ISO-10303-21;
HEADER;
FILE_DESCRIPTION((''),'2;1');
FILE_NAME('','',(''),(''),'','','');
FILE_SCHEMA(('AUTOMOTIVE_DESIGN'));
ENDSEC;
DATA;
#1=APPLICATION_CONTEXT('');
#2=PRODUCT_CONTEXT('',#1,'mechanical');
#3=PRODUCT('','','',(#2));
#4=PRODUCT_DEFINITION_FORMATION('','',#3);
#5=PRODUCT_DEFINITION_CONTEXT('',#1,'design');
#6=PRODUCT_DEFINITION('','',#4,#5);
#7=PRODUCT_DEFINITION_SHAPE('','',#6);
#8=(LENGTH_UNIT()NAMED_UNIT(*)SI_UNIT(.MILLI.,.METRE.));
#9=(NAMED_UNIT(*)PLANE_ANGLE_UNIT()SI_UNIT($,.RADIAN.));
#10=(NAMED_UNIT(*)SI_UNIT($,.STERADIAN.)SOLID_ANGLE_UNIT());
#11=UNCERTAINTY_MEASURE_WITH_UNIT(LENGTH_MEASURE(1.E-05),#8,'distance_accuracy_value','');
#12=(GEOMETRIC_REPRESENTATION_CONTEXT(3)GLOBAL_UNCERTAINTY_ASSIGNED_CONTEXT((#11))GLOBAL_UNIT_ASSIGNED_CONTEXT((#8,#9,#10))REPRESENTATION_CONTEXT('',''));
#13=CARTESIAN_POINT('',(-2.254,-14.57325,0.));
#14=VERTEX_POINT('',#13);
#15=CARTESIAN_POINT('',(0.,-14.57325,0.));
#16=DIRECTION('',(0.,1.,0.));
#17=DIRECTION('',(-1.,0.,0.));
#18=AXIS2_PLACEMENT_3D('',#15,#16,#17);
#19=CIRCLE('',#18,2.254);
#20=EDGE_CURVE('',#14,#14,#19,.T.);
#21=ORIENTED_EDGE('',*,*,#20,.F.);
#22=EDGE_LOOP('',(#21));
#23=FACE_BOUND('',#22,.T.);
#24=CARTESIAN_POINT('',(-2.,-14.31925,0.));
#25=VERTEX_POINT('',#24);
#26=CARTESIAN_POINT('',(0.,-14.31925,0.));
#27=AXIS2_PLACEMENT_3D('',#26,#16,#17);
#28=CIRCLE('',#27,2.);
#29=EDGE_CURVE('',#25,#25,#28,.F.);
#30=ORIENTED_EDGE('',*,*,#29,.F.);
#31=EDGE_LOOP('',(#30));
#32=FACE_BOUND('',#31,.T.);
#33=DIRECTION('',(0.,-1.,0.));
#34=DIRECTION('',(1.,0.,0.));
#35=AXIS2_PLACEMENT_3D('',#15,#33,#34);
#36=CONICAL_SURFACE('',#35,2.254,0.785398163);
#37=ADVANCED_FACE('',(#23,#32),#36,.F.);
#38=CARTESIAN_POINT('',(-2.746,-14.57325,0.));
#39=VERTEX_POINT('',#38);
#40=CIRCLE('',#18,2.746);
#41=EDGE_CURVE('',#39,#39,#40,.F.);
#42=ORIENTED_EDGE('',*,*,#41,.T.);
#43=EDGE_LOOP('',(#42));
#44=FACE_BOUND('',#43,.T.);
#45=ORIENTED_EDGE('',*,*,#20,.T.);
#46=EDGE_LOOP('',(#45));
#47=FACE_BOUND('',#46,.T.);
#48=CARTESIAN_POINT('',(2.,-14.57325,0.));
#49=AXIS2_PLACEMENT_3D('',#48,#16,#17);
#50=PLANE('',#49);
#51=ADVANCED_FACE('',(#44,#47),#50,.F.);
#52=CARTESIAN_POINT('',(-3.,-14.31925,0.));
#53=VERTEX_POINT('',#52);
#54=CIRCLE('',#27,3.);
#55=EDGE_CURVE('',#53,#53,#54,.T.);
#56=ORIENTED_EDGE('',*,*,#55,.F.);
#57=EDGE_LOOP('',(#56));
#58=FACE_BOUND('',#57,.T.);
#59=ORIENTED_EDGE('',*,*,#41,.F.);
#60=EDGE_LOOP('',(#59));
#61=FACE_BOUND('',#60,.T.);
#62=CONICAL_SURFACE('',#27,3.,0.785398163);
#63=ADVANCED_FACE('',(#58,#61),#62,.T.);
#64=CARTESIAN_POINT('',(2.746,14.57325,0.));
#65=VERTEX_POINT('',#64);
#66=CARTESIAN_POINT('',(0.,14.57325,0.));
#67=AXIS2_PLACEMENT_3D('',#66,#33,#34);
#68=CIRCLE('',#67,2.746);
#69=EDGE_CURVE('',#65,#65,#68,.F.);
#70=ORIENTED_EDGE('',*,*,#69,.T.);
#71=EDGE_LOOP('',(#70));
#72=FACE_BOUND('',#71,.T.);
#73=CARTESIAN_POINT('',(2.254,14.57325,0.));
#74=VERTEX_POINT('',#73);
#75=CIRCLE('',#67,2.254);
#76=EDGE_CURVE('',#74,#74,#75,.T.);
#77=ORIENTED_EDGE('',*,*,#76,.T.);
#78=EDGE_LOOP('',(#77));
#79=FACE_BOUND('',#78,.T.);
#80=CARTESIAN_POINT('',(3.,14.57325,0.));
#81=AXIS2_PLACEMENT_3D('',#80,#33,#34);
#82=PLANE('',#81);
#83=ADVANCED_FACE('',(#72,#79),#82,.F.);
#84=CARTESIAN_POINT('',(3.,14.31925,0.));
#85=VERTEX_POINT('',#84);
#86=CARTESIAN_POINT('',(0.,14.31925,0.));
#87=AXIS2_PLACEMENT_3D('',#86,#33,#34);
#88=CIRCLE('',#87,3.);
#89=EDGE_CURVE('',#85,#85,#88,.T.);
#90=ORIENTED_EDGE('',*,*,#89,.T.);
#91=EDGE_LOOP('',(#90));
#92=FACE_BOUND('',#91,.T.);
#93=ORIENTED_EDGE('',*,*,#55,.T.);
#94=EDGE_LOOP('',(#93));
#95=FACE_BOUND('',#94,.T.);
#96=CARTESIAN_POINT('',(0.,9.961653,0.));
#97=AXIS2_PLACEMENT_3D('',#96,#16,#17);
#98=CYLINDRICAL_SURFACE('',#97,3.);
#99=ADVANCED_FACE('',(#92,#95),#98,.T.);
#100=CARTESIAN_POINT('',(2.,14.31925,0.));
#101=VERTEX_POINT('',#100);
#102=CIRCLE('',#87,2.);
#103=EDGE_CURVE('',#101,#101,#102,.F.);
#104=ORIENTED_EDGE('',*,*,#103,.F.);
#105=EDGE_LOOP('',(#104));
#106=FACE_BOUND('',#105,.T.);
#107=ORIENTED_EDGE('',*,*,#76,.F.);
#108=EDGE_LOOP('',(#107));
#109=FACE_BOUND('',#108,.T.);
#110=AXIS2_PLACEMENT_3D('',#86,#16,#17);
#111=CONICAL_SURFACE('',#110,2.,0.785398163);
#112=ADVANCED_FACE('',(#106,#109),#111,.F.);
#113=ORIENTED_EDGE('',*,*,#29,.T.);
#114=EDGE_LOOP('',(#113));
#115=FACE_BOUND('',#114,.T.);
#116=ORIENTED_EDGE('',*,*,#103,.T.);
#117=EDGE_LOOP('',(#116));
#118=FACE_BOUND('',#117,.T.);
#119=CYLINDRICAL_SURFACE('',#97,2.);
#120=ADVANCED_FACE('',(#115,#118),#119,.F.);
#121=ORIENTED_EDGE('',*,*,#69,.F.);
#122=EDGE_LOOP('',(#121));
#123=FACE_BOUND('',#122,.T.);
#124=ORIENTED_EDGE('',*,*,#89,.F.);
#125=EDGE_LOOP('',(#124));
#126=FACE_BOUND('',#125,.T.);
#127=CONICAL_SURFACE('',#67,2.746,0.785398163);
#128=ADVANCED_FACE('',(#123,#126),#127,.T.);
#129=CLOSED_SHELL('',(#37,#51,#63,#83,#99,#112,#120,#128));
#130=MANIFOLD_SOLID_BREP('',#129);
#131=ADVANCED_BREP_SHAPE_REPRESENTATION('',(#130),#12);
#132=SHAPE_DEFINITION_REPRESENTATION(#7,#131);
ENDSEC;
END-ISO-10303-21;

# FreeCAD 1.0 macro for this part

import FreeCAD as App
import Part
import Sketcher

V = App.Vector


def edges_at(feature, points):
    """Names of the edges that pass closest to the given points."""
    edges = feature.Shape.Edges
    near = lambda p: min(range(len(edges)), key=lambda i: edges[i].distToShape(Part.Vertex(*p))[0])
    return sorted({f"Edge{near(p) + 1}" for p in points})


def add_polygon(sketch, points):
    """Adds a closed chain of lines whose ends are joined by coincident constraints."""
    first, n = sketch.GeometryCount, len(points)
    for a, b in zip(points, points[1:] + points[:1]):
        sketch.addGeometry(Part.LineSegment(App.Vector(*a, 0), App.Vector(*b, 0)), False)
    for i in range(n):
        sketch.addConstraint(Sketcher.Constraint("Coincident", first + i, 2, first + (i + 1) % n, 1))

doc = App.newDocument("Part")
body = doc.addObject("PartDesign::Body", "Body")

# Sketch on XY plane
sketch1 = body.newObject("Sketcher::SketchObject", "Sketch")
sketch1.AttachmentSupport = (doc.getObject("XY_Plane"), [""])
sketch1.MapMode = "FlatFace"
add_polygon(sketch1, [(2, 14.6), (2, -14.6), (3, -14.6), (3, 14.6)])  # lines 0-3
sketch1.addConstraint(Sketcher.Constraint("Vertical", 0))
sketch1.addConstraint(Sketcher.Constraint("Horizontal", 1))
sketch1.addConstraint(Sketcher.Constraint("Vertical", 2))
sketch1.addConstraint(Sketcher.Constraint("Horizontal", 3))
sketch1.addConstraint(Sketcher.Constraint("DistanceX", 1, 1, 1, 2, 1.0))
sketch1.addConstraint(Sketcher.Constraint("DistanceX", -1, 1, 0, 2, 2.0))
sketch1.addConstraint(Sketcher.Constraint("DistanceY", 0, 2, 0, 1, 29.1465))
sketch1.addConstraint(Sketcher.Constraint("DistanceY", 0, 2, -1, 1, 14.57325))
revolution = body.newObject("PartDesign::Revolution", "Revolution")
revolution.Profile = sketch1
revolution.ReferenceAxis = (sketch1, ["V_Axis"])
revolution.Angle = 360
doc.recompute()

chamfer = body.newObject("PartDesign::Chamfer", "Chamfer")
chamfer.Base = (revolution, edges_at(revolution, [
    (-3, 14.573, 0),
    (-3, -14.573, 0),
    (-2, -14.573, 0),
    (-2, 14.573, 0),
]))
chamfer.Size = 0.254

doc.recompute()
